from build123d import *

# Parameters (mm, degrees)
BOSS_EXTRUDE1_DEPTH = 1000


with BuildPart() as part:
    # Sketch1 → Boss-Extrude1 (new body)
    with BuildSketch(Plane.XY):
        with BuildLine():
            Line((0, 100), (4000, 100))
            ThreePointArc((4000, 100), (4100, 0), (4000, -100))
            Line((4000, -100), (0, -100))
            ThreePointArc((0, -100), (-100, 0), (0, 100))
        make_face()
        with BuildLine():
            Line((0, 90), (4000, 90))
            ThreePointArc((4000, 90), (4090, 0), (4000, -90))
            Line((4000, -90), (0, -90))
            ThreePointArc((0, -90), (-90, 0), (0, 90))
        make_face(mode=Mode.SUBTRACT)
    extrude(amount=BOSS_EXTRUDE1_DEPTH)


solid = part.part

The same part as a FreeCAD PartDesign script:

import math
import FreeCAD as App
import Part
import Sketcher
from FreeCAD import Vector
Q = App.Units.Quantity

doc = App.newDocument("Part")
body = doc.addObject("PartDesign::Body", "Body")

# Sketch on XY plane
sketch1 = body.newObject("Sketcher::SketchObject", "Sketch")
sketch1.AttachmentSupport = (doc.getObject("XY_Plane"), [""])
sketch1.MapMode = "FlatFace"
sketch1.addGeometry([
    Part.LineSegment(Vector(4000, 100, 0), Vector(0, 100, 0)),  # 0
    Part.ArcOfCircle(Part.Circle(Vector(0, 0, 0), Vector(0, 0, 1), 100), math.radians(90), math.radians(270)),  # 1
    Part.LineSegment(Vector(0, -100, 0), Vector(4000, -100, 0)),  # 2
    Part.ArcOfCircle(Part.Circle(Vector(4000, 0, 0), Vector(0, 0, 1), 100), math.radians(-90), math.radians(90)),  # 3
    Part.LineSegment(Vector(0, 90, 0), Vector(4000, 90, 0)),  # 4
    Part.ArcOfCircle(Part.Circle(Vector(4000, 0, 0), Vector(0, 0, 1), 90), math.radians(-90), math.radians(90)),  # 5
    Part.LineSegment(Vector(4000, -90, 0), Vector(0, -90, 0)),  # 6
    Part.ArcOfCircle(Part.Circle(Vector(0, 0, 0), Vector(0, 0, 1), 90), math.radians(90), math.radians(270)),  # 7
], False)
sketch1.addConstraint([
    Sketcher.Constraint("Tangent", 0, 2, 1, 1),
    Sketcher.Constraint("Tangent", 1, 2, 2, 1),
    Sketcher.Constraint("Tangent", 2, 2, 3, 1),
    Sketcher.Constraint("Tangent", 3, 2, 0, 1),
    Sketcher.Constraint("Tangent", 4, 2, 5, 2),
    Sketcher.Constraint("Tangent", 5, 1, 6, 1),
    Sketcher.Constraint("Tangent", 6, 2, 7, 2),
    Sketcher.Constraint("Tangent", 7, 1, 4, 1),
    Sketcher.Constraint("Horizontal", 0),
    Sketcher.Constraint("Horizontal", 2),
    Sketcher.Constraint("Horizontal", 4),
    Sketcher.Constraint("Horizontal", 6),
    Sketcher.Constraint("Coincident", 1, 3, -1, 1),
    Sketcher.Constraint("Coincident", 7, 3, -1, 1),
    Sketcher.Constraint("Vertical", 5, 3, 2, 2),
    Sketcher.Constraint("Radius", 1, Q("100 mm")),
    Sketcher.Constraint("Radius", 5, Q("90 mm")),
    Sketcher.Constraint("DistanceX", 0, 2, 0, 1, Q("4000 mm")),
])
pad1 = body.newObject("PartDesign::Pad", "Pad")
pad1.Profile = sketch1
pad1.Length = 1000

doc.recompute()
